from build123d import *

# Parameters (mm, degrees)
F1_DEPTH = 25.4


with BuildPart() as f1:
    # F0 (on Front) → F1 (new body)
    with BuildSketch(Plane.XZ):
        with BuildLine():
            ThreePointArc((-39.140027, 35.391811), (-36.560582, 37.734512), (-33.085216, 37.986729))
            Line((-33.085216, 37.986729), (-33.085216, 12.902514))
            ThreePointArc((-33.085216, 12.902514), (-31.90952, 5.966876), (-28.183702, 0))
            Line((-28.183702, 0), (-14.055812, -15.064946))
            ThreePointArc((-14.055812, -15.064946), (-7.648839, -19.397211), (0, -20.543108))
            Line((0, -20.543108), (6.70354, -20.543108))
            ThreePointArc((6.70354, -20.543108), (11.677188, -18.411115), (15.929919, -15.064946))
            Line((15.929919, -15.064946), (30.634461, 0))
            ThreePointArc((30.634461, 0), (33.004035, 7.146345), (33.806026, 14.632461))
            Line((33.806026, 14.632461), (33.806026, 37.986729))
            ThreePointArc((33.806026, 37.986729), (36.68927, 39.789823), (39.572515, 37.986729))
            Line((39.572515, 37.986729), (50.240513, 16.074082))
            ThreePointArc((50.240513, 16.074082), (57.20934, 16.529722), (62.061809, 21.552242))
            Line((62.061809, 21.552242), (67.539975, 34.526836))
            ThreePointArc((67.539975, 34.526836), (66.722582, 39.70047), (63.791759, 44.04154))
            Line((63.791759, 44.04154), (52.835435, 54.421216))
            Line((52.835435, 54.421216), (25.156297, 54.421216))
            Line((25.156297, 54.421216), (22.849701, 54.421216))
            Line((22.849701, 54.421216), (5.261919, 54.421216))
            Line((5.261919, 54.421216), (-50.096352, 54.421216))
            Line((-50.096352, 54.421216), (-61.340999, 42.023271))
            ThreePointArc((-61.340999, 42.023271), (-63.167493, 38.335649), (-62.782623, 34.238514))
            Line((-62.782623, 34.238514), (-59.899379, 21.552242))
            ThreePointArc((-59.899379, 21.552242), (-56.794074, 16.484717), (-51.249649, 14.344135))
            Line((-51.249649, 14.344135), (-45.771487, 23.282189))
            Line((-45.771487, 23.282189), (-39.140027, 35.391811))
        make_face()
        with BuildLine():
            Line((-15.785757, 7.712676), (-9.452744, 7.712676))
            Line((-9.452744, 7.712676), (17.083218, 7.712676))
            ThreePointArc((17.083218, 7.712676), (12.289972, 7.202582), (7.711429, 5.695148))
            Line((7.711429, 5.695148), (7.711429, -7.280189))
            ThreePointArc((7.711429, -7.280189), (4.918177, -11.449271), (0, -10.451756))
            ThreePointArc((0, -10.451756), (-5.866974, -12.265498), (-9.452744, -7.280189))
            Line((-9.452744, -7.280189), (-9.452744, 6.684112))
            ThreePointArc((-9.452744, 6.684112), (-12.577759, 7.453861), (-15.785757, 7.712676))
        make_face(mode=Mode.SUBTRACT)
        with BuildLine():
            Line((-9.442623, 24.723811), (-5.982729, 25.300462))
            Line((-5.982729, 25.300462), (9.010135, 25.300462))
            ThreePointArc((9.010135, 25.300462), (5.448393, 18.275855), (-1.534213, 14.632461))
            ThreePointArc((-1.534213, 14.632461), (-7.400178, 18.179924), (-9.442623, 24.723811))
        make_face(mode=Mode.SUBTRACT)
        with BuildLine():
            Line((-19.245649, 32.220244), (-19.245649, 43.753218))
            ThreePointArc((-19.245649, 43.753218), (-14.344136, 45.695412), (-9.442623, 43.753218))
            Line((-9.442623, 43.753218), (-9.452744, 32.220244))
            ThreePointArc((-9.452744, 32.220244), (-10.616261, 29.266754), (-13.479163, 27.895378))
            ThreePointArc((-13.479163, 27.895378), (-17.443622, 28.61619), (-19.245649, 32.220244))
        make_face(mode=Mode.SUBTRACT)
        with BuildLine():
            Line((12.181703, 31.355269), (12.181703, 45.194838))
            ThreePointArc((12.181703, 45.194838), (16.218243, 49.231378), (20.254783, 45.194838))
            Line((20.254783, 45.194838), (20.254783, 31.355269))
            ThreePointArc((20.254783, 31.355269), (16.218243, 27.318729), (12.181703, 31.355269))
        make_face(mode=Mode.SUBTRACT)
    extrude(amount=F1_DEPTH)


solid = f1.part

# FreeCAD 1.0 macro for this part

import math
import FreeCAD as App
import Part
import Sketcher
Q = App.Units.Quantity

doc = App.newDocument("Part")
body = doc.addObject("PartDesign::Body", "Body")

sketch1 = body.newObject("Sketcher::SketchObject", "Sketch")
sketch1.AttachmentSupport = (doc.getObject("XZ_Plane"), [""])
sketch1.MapMode = "FlatFace"
sketch1.addGeometry([
    Part.ArcOfCircle(Part.Circle(App.Vector(-34.457642, 32.82765, 0), App.Vector(0, 0, 1), 5.338506), math.radians(75.103094), math.radians(151.294071)),
    Part.LineSegment(App.Vector(-33.085216, 37.986729, 0), App.Vector(-33.085216, 12.902514, 0)),
    Part.ArcOfCircle(Part.Circle(App.Vector(-14.951706, 12.408951, 0), App.Vector(0, 0, 1), 18.140226), math.radians(178.440893), math.radians(223.161503)),
    Part.LineSegment(App.Vector(-28.183702, 0, 0), App.Vector(-14.055812, -15.064946, 0)),
    Part.ArcOfCircle(Part.Circle(App.Vector(-1.29701, -3.099753, 0), App.Vector(0, 0, 1), 17.491509), math.radians(-136.83849), math.radians(-85.747567)),
    Part.LineSegment(App.Vector(0, -20.543108, 0), App.Vector(6.70354, -20.543108, 0)),
    Part.ArcOfCircle(Part.Circle(App.Vector(1.089984, -0.580032, 0), App.Vector(0, 0, 1), 20.737319), math.radians(-74.294178), math.radians(-44.306382)),
    Part.LineSegment(App.Vector(15.929919, -15.064946, 0), App.Vector(30.634461, 0, 0)),
    Part.ArcOfCircle(Part.Circle(App.Vector(-1.534207, 14.632459, 0), App.Vector(0, 0, 1), 35.340233), math.radians(-24.459213), math.radians(0.000003)),
    Part.LineSegment(App.Vector(33.806026, 14.632461, 0), App.Vector(33.806026, 37.986729, 0)),
    Part.ArcOfCircle(Part.Circle(App.Vector(36.68927, 36.583044, 0), App.Vector(0, 0, 1), 3.206779), math.radians(25.958767), math.radians(154.041233)),
    Part.LineSegment(App.Vector(39.572515, 37.986729, 0), App.Vector(50.240513, 16.074082, 0)),
    Part.ArcOfCircle(Part.Circle(App.Vector(53.135218, 25.321251, 0), App.Vector(0, 0, 1), 9.689657), math.radians(-107.382045), math.radians(-22.890575)),
    Part.LineSegment(App.Vector(62.061809, 21.552242, 0), App.Vector(67.539975, 34.526836, 0)),
    Part.ArcOfCircle(Part.Circle(App.Vector(55.485379, 35.273694, 0), App.Vector(0, 0, 1), 12.07771), math.radians(-3.5453), math.radians(46.548161)),
    Part.LineSegment(App.Vector(63.791759, 44.04154, 0), App.Vector(52.835435, 54.421216, 0)),
    Part.LineSegment(App.Vector(52.835435, 54.421216, 0), App.Vector(-50.096352, 54.421216, 0)),
    Part.LineSegment(App.Vector(-50.096352, 54.421216, 0), App.Vector(-61.340999, 42.023271, 0)),
    Part.ArcOfCircle(Part.Circle(App.Vector(-55.763401, 36.964518, 0), App.Vector(0, 0, 1), 7.529979), math.radians(137.792697), math.radians(201.224316)),
    Part.LineSegment(App.Vector(-62.782623, 34.238514, 0), App.Vector(-59.899379, 21.552242, 0)),
    Part.ArcOfCircle(Part.Circle(App.Vector(-50.858928, 23.606892, 0), App.Vector(0, 0, 1), 9.270994), math.radians(-167.195719), math.radians(-92.415413)),
    Part.LineSegment(App.Vector(-51.249649, 14.344135, 0), App.Vector(-45.771487, 23.282189, 0)),
    Part.LineSegment(App.Vector(-45.771487, 23.282189, 0), App.Vector(-39.140027, 35.391811, 0)),
    Part.ArcOfCircle(Part.Circle(App.Vector(-15.78576, -12.298249, 0), App.Vector(0, 0, 1), 20.010925), math.radians(71.549943), math.radians(89.999992)),
    Part.LineSegment(App.Vector(-15.785757, 7.712676, 0), App.Vector(17.083218, 7.712676, 0)),
    Part.ArcOfCircle(Part.Circle(App.Vector(17.083217, -15.062928, 0), App.Vector(0, 0, 1), 22.775604), math.radians(89.999999), math.radians(114.298069)),
    Part.LineSegment(App.Vector(7.711429, 5.695148, 0), App.Vector(7.711429, -7.280189, 0)),
    Part.ArcOfCircle(Part.Circle(App.Vector(3.203511, -7.280189, 0), App.Vector(0, 0, 1), 4.507918), math.radians(-135.287098), math.radians(0.000003)),
    Part.ArcOfCircle(Part.Circle(App.Vector(-4.194313, -7.280189, 0), App.Vector(0, 0, 1), 5.258431), math.radians(179.999995), math.radians(322.904931)),
    Part.LineSegment(App.Vector(-9.452744, -7.280189, 0), App.Vector(-9.452744, 6.684112, 0)),
    Part.ArcOfCircle(Part.Circle(App.Vector(0.214183, 24.147162, 0), App.Vector(0, 0, 1), 9.674008), math.radians(176.582685), math.radians(259.58764)),
    Part.LineSegment(App.Vector(-9.442623, 24.723811, 0), App.Vector(-5.982729, 25.300462, 0)),
    Part.LineSegment(App.Vector(-5.982729, 25.300462, 0), App.Vector(9.010135, 25.300462, 0)),
    Part.ArcOfCircle(Part.Circle(App.Vector(-3.723891, 27.341823, 0), App.Vector(0, 0, 1), 12.896611), math.radians(-80.224558), math.radians(-9.107461)),
    Part.ArcOfCircle(Part.Circle(App.Vector(-14.74058, 32.220245, 0), App.Vector(0, 0, 1), 4.505069), math.radians(-179.999992), math.radians(-73.739823)),
    Part.LineSegment(App.Vector(-19.245649, 32.220244, 0), App.Vector(-19.245649, 43.753218, 0)),
    Part.ArcOfCircle(Part.Circle(App.Vector(-14.344136, 38.539343, 0), App.Vector(0, 0, 1), 7.156069), math.radians(46.768723), math.radians(133.231277)),
    Part.LineSegment(App.Vector(-9.442623, 43.753218, 0), App.Vector(-9.452744, 32.220244, 0)),
    Part.ArcOfCircle(Part.Circle(App.Vector(-13.792761, 32.224052, 0), App.Vector(0, 0, 1), 4.340018), math.radians(-85.856357), math.radians(-0.050266)),
    Part.ArcOfCircle(Part.Circle(App.Vector(16.218243, 31.355269, 0), App.Vector(0, 0, 1), 4.03654), math.radians(180), math.radians(360)),
    Part.LineSegment(App.Vector(12.181703, 31.355269, 0), App.Vector(12.181703, 45.194838, 0)),
    Part.ArcOfCircle(Part.Circle(App.Vector(16.218243, 45.194838, 0), App.Vector(0, 0, 1), 4.03654), math.radians(0), math.radians(180)),
    Part.LineSegment(App.Vector(20.254783, 45.194838, 0), App.Vector(20.254783, 31.355269, 0)),
], False)
sketch1.addConstraint([
    Sketcher.Constraint("Coincident", 0, 1, 1, 1),
    Sketcher.Constraint("Coincident", 1, 2, 2, 1),
    Sketcher.Constraint("Coincident", 2, 2, 3, 1),
    Sketcher.Constraint("Coincident", 3, 2, 4, 1),
    Sketcher.Constraint("Coincident", 4, 2, 5, 1),
    Sketcher.Constraint("Coincident", 5, 2, 6, 1),
    Sketcher.Constraint("Coincident", 6, 2, 7, 1),
    Sketcher.Constraint("Coincident", 7, 2, 8, 1),
    Sketcher.Constraint("Coincident", 8, 2, 9, 1),
    Sketcher.Constraint("Coincident", 9, 2, 10, 2),
    Sketcher.Constraint("Coincident", 10, 1, 11, 1),
    Sketcher.Constraint("Coincident", 11, 2, 12, 1),
    Sketcher.Constraint("Coincident", 12, 2, 13, 1),
    Sketcher.Constraint("Coincident", 13, 2, 14, 1),
    Sketcher.Constraint("Coincident", 14, 2, 15, 1),
    Sketcher.Constraint("Coincident", 15, 2, 16, 1),
    Sketcher.Constraint("Coincident", 16, 2, 17, 1),
    Sketcher.Constraint("Coincident", 17, 2, 18, 1),
    Sketcher.Constraint("Coincident", 18, 2, 19, 1),
    Sketcher.Constraint("Coincident", 19, 2, 20, 1),
    Sketcher.Constraint("Coincident", 20, 2, 21, 1),
    Sketcher.Constraint("Coincident", 21, 2, 22, 1),
    Sketcher.Constraint("Coincident", 22, 2, 0, 2),
    Sketcher.Constraint("Coincident", 23, 2, 24, 1),
    Sketcher.Constraint("Coincident", 24, 2, 25, 1),
    Sketcher.Constraint("Coincident", 25, 2, 26, 1),
    Sketcher.Constraint("Coincident", 26, 2, 27, 2),
    Sketcher.Constraint("Coincident", 27, 1, 28, 2),
    Sketcher.Constraint("Coincident", 28, 1, 29, 1),
    Sketcher.Constraint("Coincident", 29, 2, 23, 1),
    Sketcher.Constraint("Coincident", 30, 1, 31, 1),
    Sketcher.Constraint("Coincident", 31, 2, 32, 1),
    Sketcher.Constraint("Coincident", 32, 2, 33, 2),
    Sketcher.Constraint("Coincident", 33, 1, 30, 2),
    Sketcher.Constraint("Coincident", 34, 1, 35, 1),
    Sketcher.Constraint("Coincident", 35, 2, 36, 2),
    Sketcher.Constraint("Coincident", 36, 1, 37, 1),
    Sketcher.Constraint("Coincident", 37, 2, 38, 2),
    Sketcher.Constraint("Coincident", 38, 1, 34, 2),
    Sketcher.Constraint("Coincident", 39, 1, 40, 1),
    Sketcher.Constraint("Coincident", 40, 2, 41, 2),
    Sketcher.Constraint("Coincident", 41, 1, 42, 1),
    Sketcher.Constraint("Coincident", 42, 2, 39, 2),
    Sketcher.Constraint("Vertical", 1),
    Sketcher.Constraint("Horizontal", 5),
    Sketcher.Constraint("Vertical", 9),
    Sketcher.Constraint("Horizontal", 16),
    Sketcher.Constraint("Horizontal", 24),
    Sketcher.Constraint("Vertical", 26),
    Sketcher.Constraint("Vertical", 29),
    Sketcher.Constraint("Horizontal", 32),
    Sketcher.Constraint("Vertical", 35),
    Sketcher.Constraint("Vertical", 40),
    Sketcher.Constraint("Vertical", 42),
    Sketcher.Constraint("Coincident", 33, 1, 8, 3),
    Sketcher.Constraint("PointOnObject", 2, 2, -1),
    Sketcher.Constraint("PointOnObject", 4, 2, -2),
    Sketcher.Constraint("PointOnObject", 7, 2, -1),
    Sketcher.Constraint("PointOnObject", 27, 1, -2),
    Sketcher.Constraint("DistanceX", 17, 2, -1, 1, Q("2.415 in")),
    Sketcher.Constraint("Radius", 4, Q("17.491509 mm")),
    Sketcher.Constraint("Radius", 6, Q("20.737319 mm")),
    Sketcher.Constraint("Radius", 10, Q("3.206779 mm")),
    Sketcher.Constraint("Radius", 14, Q("12.07771 mm")),
    Sketcher.Constraint("Radius", 18, Q("7.529979 mm")),
    Sketcher.Constraint("Radius", 28, Q("5.258431 mm")),
    Sketcher.Constraint("Radius", 30, Q("9.674008 mm")),
    Sketcher.Constraint("Radius", 33, Q("12.896611 mm")),
    Sketcher.Constraint("Radius", 34, Q("4.505069 mm")),
    Sketcher.Constraint("Radius", 36, Q("7.156069 mm")),
    Sketcher.Constraint("Radius", 38, Q("4.340018 mm")),
    Sketcher.Constraint("Radius", 39, Q("4.03654 mm")),
    Sketcher.Constraint("DistanceY", 29, 1, 29, 2, Q("13.964301 mm")),
    Sketcher.Constraint("DistanceX", 0, 3, -1, 1, Q("1.3566001 in")),
    Sketcher.Constraint("Radius", 0, Q("5.338506 mm")),
    Sketcher.Constraint("Radius", 2, Q("18.140226 mm")),
    Sketcher.Constraint("Radius", 8, Q("35.340233 mm")),
    Sketcher.Constraint("Radius", 12, Q("9.689657 mm")),
    Sketcher.Constraint("Radius", 20, Q("9.270994 mm")),
    Sketcher.Constraint("Radius", 23, Q("20.010925 mm")),
    Sketcher.Constraint("Radius", 25, Q("22.775604 mm")),
    Sketcher.Constraint("Radius", 27, Q("4.507918 mm")),
    Sketcher.Constraint("DistanceX", 5, 1, 5, 2, Q("6.70354 mm")),
    Sketcher.Constraint("DistanceY", 40, 1, 40, 2, Q("13.839569 mm")),
    Sketcher.Constraint("DistanceY", 42, 2, 42, 1, Q("13.839569 mm")),
    Sketcher.Constraint("DistanceX", 18, 3, -1, 1, Q("55.763401 mm")),
    Sketcher.Constraint("Distance", 7, Q("21.051749 mm")),
    Sketcher.Constraint("Distance", 15, Q("15.092339 mm")),
    Sketcher.Constraint("Distance", 19, Q("13.009788 mm")),
    Sketcher.Constraint("Distance", 22, Q("13.806491 mm")),
    Sketcher.Constraint("Distance", 31, Q("3.507619 mm")),
    Sketcher.Constraint("Distance", 37, Q("11.532978 mm")),
    Sketcher.Constraint("DistanceX", 16, 2, 16, 1, Q("102.931787 mm")),
    Sketcher.Constraint("DistanceX", 24, 1, 24, 2, Q("32.868975 mm")),
    Sketcher.Constraint("DistanceX", 32, 1, 32, 2, Q("14.992864 mm")),
    Sketcher.Constraint("DistanceY", 1, 2, 1, 1, Q("25.084215 mm")),
    Sketcher.Constraint("DistanceY", 9, 1, 9, 2, Q("23.354268 mm")),
    Sketcher.Constraint("DistanceY", 26, 2, 26, 1, Q("12.975337 mm")),
    Sketcher.Constraint("DistanceY", 35, 1, 35, 2, Q("11.532974 mm")),
    Sketcher.Constraint("DistanceY", -1, 1, 0, 3, Q("32.82765 mm")),
    Sketcher.Constraint("DistanceY", -1, 1, 2, 3, Q("12.408951 mm")),
    Sketcher.Constraint("DistanceX", 4, 3, -1, 1, Q("1.29701 mm")),
    Sketcher.Constraint("DistanceY", -1, 1, 8, 3, Q("14.632459 mm")),
    Sketcher.Constraint("DistanceX", -1, 1, 10, 3, Q("36.68927 mm")),
    Sketcher.Constraint("DistanceX", -1, 1, 12, 3, Q("53.135218 mm")),
    Sketcher.Constraint("DistanceY", -1, 1, 12, 3, Q("25.321251 mm")),
    Sketcher.Constraint("DistanceX", -1, 1, 14, 3, Q("55.485379 mm")),
    Sketcher.Constraint("DistanceY", -1, 1, 18, 3, Q("36.964518 mm")),
    Sketcher.Constraint("DistanceX", 20, 3, -1, 1, Q("50.858928 mm")),
    Sketcher.Constraint("DistanceX", 23, 3, -1, 1, Q("15.78576 mm")),
    Sketcher.Constraint("DistanceY", 23, 3, -1, 1, Q("12.298249 mm")),
    Sketcher.Constraint("DistanceX", -1, 1, 27, 3, Q("3.203511 mm")),
    Sketcher.Constraint("DistanceY", 27, 3, -1, 1, Q("7.280189 mm")),
    Sketcher.Constraint("DistanceY", 28, 3, -1, 1, Q("7.280189 mm")),
    Sketcher.Constraint("DistanceX", 33, 3, -1, 1, Q("3.723891 mm")),
    Sketcher.Constraint("DistanceX", 34, 3, -1, 1, Q("14.74058 mm")),
    Sketcher.Constraint("DistanceX", 38, 3, -1, 1, Q("13.792761 mm")),
    Sketcher.Constraint("DistanceY", -1, 1, 38, 3, Q("32.224052 mm")),
    Sketcher.Constraint("DistanceY", -1, 1, 39, 3, Q("31.355269 mm")),
    Sketcher.Constraint("DistanceY", -1, 1, 0, 1, Q("37.986729 mm")),
    Sketcher.Constraint("DistanceY", 4, 2, -1, 1, Q("20.543108 mm")),
    Sketcher.Constraint("DistanceX", -1, 1, 6, 2, Q("15.929919 mm")),
    Sketcher.Constraint("DistanceX", -1, 1, 7, 2, Q("30.634461 mm")),
    Sketcher.Constraint("DistanceY", -1, 1, 8, 2, Q("14.632461 mm")),
    Sketcher.Constraint("DistanceY", -1, 1, 10, 1, Q("37.986729 mm")),
    Sketcher.Constraint("DistanceX", -1, 1, 12, 2, Q("62.061809 mm")),
    Sketcher.Constraint("DistanceX", -1, 1, 14, 2, Q("63.791759 mm")),
    Sketcher.Constraint("DistanceY", -1, 1, 14, 2, Q("44.04154 mm")),
    Sketcher.Constraint("DistanceX", 19, 2, -1, 1, Q("59.899379 mm")),
    Sketcher.Constraint("DistanceY", -1, 1, 19, 2, Q("21.552242 mm")),
    Sketcher.Constraint("DistanceX", 20, 2, -1, 1, Q("51.249649 mm")),
    Sketcher.Constraint("DistanceY", -1, 1, 21, 2, Q("23.282189 mm")),
    Sketcher.Constraint("DistanceY", -1, 1, 22, 2, Q("35.391811 mm")),
    Sketcher.Constraint("DistanceY", 26, 2, -1, 1, Q("7.280189 mm")),
    Sketcher.Constraint("DistanceY", -1, 1, 30, 1, Q("24.723811 mm")),
    Sketcher.Constraint("DistanceX", 31, 2, -1, 1, Q("5.982729 mm")),
    Sketcher.Constraint("DistanceY", -1, 1, 39, 1, Q("31.355269 mm")),
    Sketcher.Constraint("DistanceY", -1, 1, 42, 2, Q("31.355269 mm")),
    Sketcher.Constraint("Distance", 3, Q("20.653084 mm")),
    Sketcher.Constraint("Distance", 11, Q("24.371505 mm")),
    Sketcher.Constraint("Distance", 13, Q("14.083692 mm")),
    Sketcher.Constraint("Distance", 17, Q("16.737716 mm")),
    Sketcher.Constraint("DistanceY", -1, 1, 34, 3, Q("32.220245 mm")),
    Sketcher.Constraint("DistanceX", 36, 3, -1, 1, Q("14.344136 mm")),
    Sketcher.Constraint("DistanceY", -1, 1, 36, 3, Q("38.539343 mm")),
    Sketcher.Constraint("DistanceX", -1, 1, 39, 3, Q("16.218243 mm")),
    Sketcher.Constraint("DistanceY", -1, 1, 41, 3, Q("45.194838 mm")),
    Sketcher.Constraint("DistanceX", 23, 2, -1, 1, Q("15.785757 mm")),
    Sketcher.Constraint("DistanceX", 36, 1, -1, 1, Q("9.442623 mm")),
])
pad1 = body.newObject("PartDesign::Pad", "Pad")
pad1.Profile = sketch1
pad1.Length = Q("1 in")

doc.recompute()
